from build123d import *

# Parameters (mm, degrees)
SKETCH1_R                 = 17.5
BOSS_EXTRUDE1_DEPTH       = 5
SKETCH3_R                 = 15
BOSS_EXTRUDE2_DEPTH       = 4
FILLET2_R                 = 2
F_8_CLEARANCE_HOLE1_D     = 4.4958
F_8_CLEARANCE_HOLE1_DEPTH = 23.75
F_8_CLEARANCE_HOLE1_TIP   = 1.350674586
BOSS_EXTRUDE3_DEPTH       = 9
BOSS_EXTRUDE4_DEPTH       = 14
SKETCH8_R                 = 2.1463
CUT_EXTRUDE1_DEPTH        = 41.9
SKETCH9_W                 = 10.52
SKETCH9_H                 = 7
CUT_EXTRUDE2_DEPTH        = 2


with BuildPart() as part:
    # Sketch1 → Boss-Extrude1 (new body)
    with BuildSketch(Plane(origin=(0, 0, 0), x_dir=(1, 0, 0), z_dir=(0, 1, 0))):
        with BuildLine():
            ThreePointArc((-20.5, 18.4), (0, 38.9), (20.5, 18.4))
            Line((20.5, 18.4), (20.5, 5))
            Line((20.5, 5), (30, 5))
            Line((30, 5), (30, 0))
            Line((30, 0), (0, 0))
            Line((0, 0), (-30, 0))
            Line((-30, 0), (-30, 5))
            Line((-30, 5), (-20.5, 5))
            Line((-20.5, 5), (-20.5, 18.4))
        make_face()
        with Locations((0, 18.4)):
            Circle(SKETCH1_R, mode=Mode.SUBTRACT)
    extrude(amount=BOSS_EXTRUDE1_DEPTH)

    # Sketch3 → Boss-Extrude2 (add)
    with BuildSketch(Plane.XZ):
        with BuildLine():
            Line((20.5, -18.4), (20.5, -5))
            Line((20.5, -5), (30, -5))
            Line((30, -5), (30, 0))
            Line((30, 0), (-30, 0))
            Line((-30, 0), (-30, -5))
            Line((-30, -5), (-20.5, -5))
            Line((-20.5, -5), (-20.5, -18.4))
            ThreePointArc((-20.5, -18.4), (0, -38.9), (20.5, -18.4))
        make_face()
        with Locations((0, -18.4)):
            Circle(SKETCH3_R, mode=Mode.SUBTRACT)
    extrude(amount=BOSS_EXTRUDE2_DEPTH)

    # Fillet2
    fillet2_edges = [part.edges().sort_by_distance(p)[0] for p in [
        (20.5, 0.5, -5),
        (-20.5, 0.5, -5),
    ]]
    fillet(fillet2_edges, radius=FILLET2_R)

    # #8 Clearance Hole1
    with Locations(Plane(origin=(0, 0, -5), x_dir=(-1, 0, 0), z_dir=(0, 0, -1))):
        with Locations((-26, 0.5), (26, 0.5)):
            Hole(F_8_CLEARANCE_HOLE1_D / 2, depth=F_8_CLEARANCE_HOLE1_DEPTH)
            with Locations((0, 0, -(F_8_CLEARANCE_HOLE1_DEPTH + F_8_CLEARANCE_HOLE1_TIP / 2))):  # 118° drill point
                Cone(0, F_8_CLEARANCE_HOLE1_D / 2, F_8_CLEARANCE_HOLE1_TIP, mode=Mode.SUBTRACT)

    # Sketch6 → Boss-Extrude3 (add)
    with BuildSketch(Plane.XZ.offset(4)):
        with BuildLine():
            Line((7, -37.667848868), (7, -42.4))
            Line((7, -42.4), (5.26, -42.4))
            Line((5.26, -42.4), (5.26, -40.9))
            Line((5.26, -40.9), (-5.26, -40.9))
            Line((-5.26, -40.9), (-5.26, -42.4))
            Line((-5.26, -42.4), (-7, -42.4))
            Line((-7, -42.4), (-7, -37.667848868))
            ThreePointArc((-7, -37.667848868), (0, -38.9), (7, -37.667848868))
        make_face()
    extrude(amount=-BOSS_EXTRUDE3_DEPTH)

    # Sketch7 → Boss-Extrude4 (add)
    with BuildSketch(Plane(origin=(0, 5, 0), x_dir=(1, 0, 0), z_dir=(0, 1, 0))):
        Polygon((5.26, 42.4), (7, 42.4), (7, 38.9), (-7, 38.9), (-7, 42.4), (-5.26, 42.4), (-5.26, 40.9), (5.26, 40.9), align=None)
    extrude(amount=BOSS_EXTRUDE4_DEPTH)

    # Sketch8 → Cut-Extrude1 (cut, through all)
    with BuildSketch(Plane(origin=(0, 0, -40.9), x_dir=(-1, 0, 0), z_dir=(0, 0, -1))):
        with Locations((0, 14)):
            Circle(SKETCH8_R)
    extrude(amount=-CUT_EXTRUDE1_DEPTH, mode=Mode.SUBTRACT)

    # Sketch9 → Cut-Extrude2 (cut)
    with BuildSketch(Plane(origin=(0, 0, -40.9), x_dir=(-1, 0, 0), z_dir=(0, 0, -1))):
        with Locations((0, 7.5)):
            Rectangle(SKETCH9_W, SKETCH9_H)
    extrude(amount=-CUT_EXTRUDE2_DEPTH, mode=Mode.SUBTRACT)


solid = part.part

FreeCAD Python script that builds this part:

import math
import FreeCAD as App
import Part
import Sketcher

V = App.Vector
Q = App.Units.Quantity


def edges_at(feature, points):
    """Names of the edges that pass closest to the given points."""
    edges = feature.Shape.Edges
    near = lambda p: min(range(len(edges)), key=lambda i: edges[i].distToShape(Part.Vertex(*p))[0])
    return sorted({f"Edge{near(p) + 1}" for p in points})

doc = App.newDocument("Part")
params = doc.addObject("Spreadsheet::Sheet", "Params")
for row, (alias, value) in enumerate([
    ("sketch1_diameter", "35 mm"),
    ("sketch1_radius", "20.5 mm"),
    ("sketch1_width", "60 mm"),
    ("sketch1_height", "5 mm"),
    ("sketch1_height2", "13.4 mm"),
    ("pad1_length", "5 mm"),
    ("sketch2_diameter", "30 mm"),
    ("sketch2_radius", "20.5 mm"),
    ("sketch2_width", "60 mm"),
    ("sketch2_height", "5 mm"),
    ("sketch2_height2", "13.4 mm"),
    ("pad2_length", "4 mm"),
    ("fillet_radius", "2 mm"),
    ("hole_diameter", "4.4958 mm"),
    ("hole_depth", "23.75 mm"),
    ("sketch4_radius", "20.5 mm"),
    ("sketch4_height", "1.5 mm"),
    ("sketch4_width", "1.74 mm"),
    ("pad3_length", "9 mm"),
    ("sketch5_width", "14 mm"),
    ("sketch5_height", "1.5 mm"),
    ("sketch5_height2", "3.5 mm"),
    ("sketch5_width2", "1.74 mm"),
    ("pad4_length", "14 mm"),
    ("sketch7_height", "7 mm"),
    ("sketch7_width", "10.52 mm"),
    ("pocket2_length", "2 mm"),
], start=1):
    params.set(f"A{row}", alias)
    params.set(f"B{row}", "=" + value)
    params.setAlias(f"B{row}", alias)

body = doc.addObject("PartDesign::Body", "Body")

sketch1 = body.newObject("Sketcher::SketchObject", "Sketch")
sketch1.AttachmentSupport = (doc.getObject("XZ_Plane"), [""])
sketch1.MapMode = "FlatFace"
sketch1.addGeometry([
    Part.ArcOfCircle(Part.Circle(V(0, -18, 0), V(0, 0, 1), 20), math.radians(180), math.radians(360)),
    Part.LineSegment(V(-20, -18, 0), V(-20, -5, 0)),
    Part.LineSegment(V(-20, -5, 0), V(-30, -5, 0)),
    Part.LineSegment(V(-30, -5, 0), V(-30, 0, 0)),
    Part.LineSegment(V(-30, 0, 0), V(30, 0, 0)),
    Part.LineSegment(V(30, 0, 0), V(30, -5, 0)),
    Part.LineSegment(V(30, -5, 0), V(20, -5, 0)),
    Part.LineSegment(V(20, -5, 0), V(20, -18, 0)),
    Part.Circle(V(0, -18, 0), V(0, 0, 1), 18),
], False)
sketch1.addConstraint([
    Sketcher.Constraint("Tangent", 0, 1, 1, 1),
    Sketcher.Constraint("Coincident", 1, 2, 2, 1),
    Sketcher.Constraint("Coincident", 2, 2, 3, 1),
    Sketcher.Constraint("Coincident", 3, 2, 4, 1),
    Sketcher.Constraint("Coincident", 4, 2, 5, 1),
    Sketcher.Constraint("Coincident", 5, 2, 6, 1),
    Sketcher.Constraint("Coincident", 6, 2, 7, 1),
    Sketcher.Constraint("Tangent", 7, 2, 0, 2),
    Sketcher.Constraint("Vertical", 1),
    Sketcher.Constraint("Horizontal", 2),
    Sketcher.Constraint("Vertical", 3),
    Sketcher.Constraint("Horizontal", 4),
    Sketcher.Constraint("Vertical", 5),
    Sketcher.Constraint("Horizontal", 6),
    Sketcher.Constraint("Vertical", 7),
    Sketcher.Constraint("Coincident", 8, 3, 0, 3),
    Sketcher.Constraint("Symmetric", 3, 2, 4, 2, -1, 1),
    Sketcher.Constraint("Symmetric", 1, 2, 6, 2, -2),
    Sketcher.Constraint("Diameter", 8, Q("35 mm")),
    Sketcher.Constraint("Radius", 0, Q("20.5 mm")),
    Sketcher.Constraint("DistanceX", 4, 1, 4, 2, Q("60 mm")),
    Sketcher.Constraint("DistanceY", 3, 1, 3, 2, Q("5 mm")),
    Sketcher.Constraint("DistanceY", 1, 1, 1, 2, Q("13.4 mm")),
])
sketch1.setExpression("Constraints[18]", "Params.sketch1_diameter")
sketch1.setExpression("Constraints[19]", "Params.sketch1_radius")
sketch1.setExpression("Constraints[20]", "Params.sketch1_width")
sketch1.setExpression("Constraints[21]", "Params.sketch1_height")
sketch1.setExpression("Constraints[22]", "Params.sketch1_height2")
pad1 = body.newObject("PartDesign::Pad", "Pad")
pad1.Profile = sketch1
pad1.setExpression("Length", "Params.pad1_length")
pad1.Reversed = True

sketch2 = body.newObject("Sketcher::SketchObject", "Sketch001")
sketch2.AttachmentSupport = (doc.getObject("XZ_Plane"), [""])
sketch2.MapMode = "FlatFace"
sketch2.addGeometry([
    Part.LineSegment(V(20, -18, 0), V(20, -5, 0)),
    Part.LineSegment(V(20, -5, 0), V(30, -5, 0)),
    Part.LineSegment(V(30, -5, 0), V(30, 0, 0)),
    Part.LineSegment(V(30, 0, 0), V(-30, 0, 0)),
    Part.LineSegment(V(-30, 0, 0), V(-30, -5, 0)),
    Part.LineSegment(V(-30, -5, 0), V(-20, -5, 0)),
    Part.LineSegment(V(-20, -5, 0), V(-20, -18, 0)),
    Part.ArcOfCircle(Part.Circle(V(0, -18, 0), V(0, 0, 1), 20), math.radians(180), math.radians(360)),
    Part.Circle(V(0, -18, 0), V(0, 0, 1), 15),
], False)
sketch2.addConstraint([
    Sketcher.Constraint("Coincident", 0, 2, 1, 1),
    Sketcher.Constraint("Coincident", 1, 2, 2, 1),
    Sketcher.Constraint("Coincident", 2, 2, 3, 1),
    Sketcher.Constraint("Coincident", 3, 2, 4, 1),
    Sketcher.Constraint("Coincident", 4, 2, 5, 1),
    Sketcher.Constraint("Coincident", 5, 2, 6, 1),
    Sketcher.Constraint("Tangent", 6, 2, 7, 1),
    Sketcher.Constraint("Tangent", 7, 2, 0, 1),
    Sketcher.Constraint("Vertical", 0),
    Sketcher.Constraint("Horizontal", 1),
    Sketcher.Constraint("Vertical", 2),
    Sketcher.Constraint("Horizontal", 3),
    Sketcher.Constraint("Vertical", 4),
    Sketcher.Constraint("Horizontal", 5),
    Sketcher.Constraint("Vertical", 6),
    Sketcher.Constraint("Coincident", 8, 3, 7, 3),
    Sketcher.Constraint("Symmetric", 2, 2, 3, 2, -1, 1),
    Sketcher.Constraint("Symmetric", 0, 2, 5, 2, -2),
    Sketcher.Constraint("Diameter", 8, Q("30 mm")),
    Sketcher.Constraint("Radius", 7, Q("20.5 mm")),
    Sketcher.Constraint("DistanceX", 3, 2, 3, 1, Q("60 mm")),
    Sketcher.Constraint("DistanceY", 2, 1, 2, 2, Q("5 mm")),
    Sketcher.Constraint("DistanceY", 0, 1, 0, 2, Q("13.4 mm")),
])
sketch2.setExpression("Constraints[18]", "Params.sketch2_diameter")
sketch2.setExpression("Constraints[19]", "Params.sketch2_radius")
sketch2.setExpression("Constraints[20]", "Params.sketch2_width")
sketch2.setExpression("Constraints[21]", "Params.sketch2_height")
sketch2.setExpression("Constraints[22]", "Params.sketch2_height2")
pad2 = body.newObject("PartDesign::Pad", "Pad001")
pad2.Profile = sketch2
pad2.setExpression("Length", "Params.pad2_length")
doc.recompute()

fillet = body.newObject("PartDesign::Fillet", "Fillet")
fillet.Base = (pad2, edges_at(pad2, [(20.5, 0.5, -5), (-20.5, 0.5, -5)]))
fillet.setExpression("Radius", "Params.fillet_radius")

sketch3 = body.newObject("Sketcher::SketchObject", "Sketch002")
sketch3.AttachmentSupport = (doc.getObject("XY_Plane"), [""])
sketch3.MapMode = "FlatFace"
sketch3.AttachmentOffset = App.Placement(V(0, 0, -5), App.Rotation())
sketch3.addGeometry([
    Part.Circle(V(26, 0.5, 0), V(0, 0, 1), 2.2),
    Part.Circle(V(-26, 0.5, 0), V(0, 0, 1), 2.2),
], False)
sketch3.addConstraint([
    Sketcher.Constraint("Equal", 0, 1),
    Sketcher.Constraint("Symmetric", 0, 3, 1, 3, -2),
    Sketcher.Constraint("DistanceX", -1, 1, 0, 3, Q("26 mm")),
    Sketcher.Constraint("Diameter", 0, Q("4.4958 mm")),
    Sketcher.Constraint("DistanceY", -1, 1, 0, 3, Q("0.5 mm")),
])
doc.recompute()
hole = body.newObject("PartDesign::Hole", "Hole")
hole.Profile = sketch3
hole.ThreadType = "None"
hole.setExpression("Diameter", "Params.hole_diameter")
hole.DepthType = "Dimension"
hole.setExpression("Depth", "Params.hole_depth")
hole.DrillPoint = "Angled"
hole.DrillPointAngle = 118
hole.Reversed = True

sketch4 = body.newObject("Sketcher::SketchObject", "Sketch003")
sketch4.AttachmentSupport = (doc.getObject("XZ_Plane"), [""])
sketch4.MapMode = "FlatFace"
sketch4.AttachmentOffset = App.Placement(V(0, 0, 4), App.Rotation())
sketch4.addGeometry([
    Part.LineSegment(V(7, -42.4, 0), V(7, -37.7, 0)),
    Part.ArcOfCircle(Part.Circle(V(0, -18.4, 0), V(0, 0, 1), 20.5), math.radians(-110), math.radians(-70)),
    Part.LineSegment(V(-7, -37.7, 0), V(-7, -42.4, 0)),
    Part.LineSegment(V(-7, -42.4, 0), V(-5.3, -42.4, 0)),
    Part.LineSegment(V(-5.3, -42.4, 0), V(-5.3, -40.9, 0)),
    Part.LineSegment(V(-5.3, -40.9, 0), V(5.3, -40.9, 0)),
    Part.LineSegment(V(5.3, -40.9, 0), V(5.3, -42.4, 0)),
    Part.LineSegment(V(5.3, -42.4, 0), V(7, -42.4, 0)),
], False)
sketch4.addConstraint([
    Sketcher.Constraint("Coincident", 0, 2, 1, 2),
    Sketcher.Constraint("Coincident", 1, 1, 2, 1),
    Sketcher.Constraint("Coincident", 2, 2, 3, 1),
    Sketcher.Constraint("Coincident", 3, 2, 4, 1),
    Sketcher.Constraint("Coincident", 4, 2, 5, 1),
    Sketcher.Constraint("Coincident", 5, 2, 6, 1),
    Sketcher.Constraint("Coincident", 6, 2, 7, 1),
    Sketcher.Constraint("Coincident", 7, 2, 0, 1),
    Sketcher.Constraint("Vertical", 0),
    Sketcher.Constraint("Vertical", 2),
    Sketcher.Constraint("Horizontal", 3),
    Sketcher.Constraint("Vertical", 4),
    Sketcher.Constraint("Horizontal", 5),
    Sketcher.Constraint("Vertical", 6),
    Sketcher.Constraint("Horizontal", 7),
    Sketcher.Constraint("Symmetric", 0, 2, 1, 1, -2),
    Sketcher.Constraint("Symmetric", 3, 2, 6, 2, -2),
    Sketcher.Constraint("Radius", 1, Q("20.5 mm")),
    Sketcher.Constraint("DistanceY", 4, 1, 4, 2, Q("1.5 mm")),
    Sketcher.Constraint("DistanceX", -1, 1, 0, 2, Q("7 mm")),
    Sketcher.Constraint("DistanceY", 2, 2, 1, 3, Q("24 mm")),
    Sketcher.Constraint("DistanceX", 3, 1, 3, 2, Q("1.74 mm")),
    Sketcher.Constraint("DistanceY", 1, 3, -1, 1, Q("18.4 mm")),
])
sketch4.setExpression("Constraints[17]", "Params.sketch4_radius")
sketch4.setExpression("Constraints[18]", "Params.sketch4_height")
sketch4.setExpression("Constraints[21]", "Params.sketch4_width")
pad3 = body.newObject("PartDesign::Pad", "Pad002")
pad3.Profile = sketch4
pad3.setExpression("Length", "Params.pad3_length")
pad3.Reversed = True

sketch5 = body.newObject("Sketcher::SketchObject", "Sketch004")
sketch5.AttachmentSupport = (doc.getObject("XZ_Plane"), [""])
sketch5.MapMode = "FlatFace"
sketch5.AttachmentOffset = App.Placement(V(0, 0, -5), App.Rotation())
sketch5.addGeometry([
    Part.LineSegment(V(7, -42.4, 0), V(5.3, -42.4, 0)),
    Part.LineSegment(V(5.3, -42.4, 0), V(5.3, -40.9, 0)),
    Part.LineSegment(V(5.3, -40.9, 0), V(-5.3, -40.9, 0)),
    Part.LineSegment(V(-5.3, -40.9, 0), V(-5.3, -42.4, 0)),
    Part.LineSegment(V(-5.3, -42.4, 0), V(-7, -42.4, 0)),
    Part.LineSegment(V(-7, -42.4, 0), V(-7, -38.9, 0)),
    Part.LineSegment(V(-7, -38.9, 0), V(7, -38.9, 0)),
    Part.LineSegment(V(7, -38.9, 0), V(7, -42.4, 0)),
], False)
sketch5.addConstraint([
    Sketcher.Constraint("Coincident", 0, 2, 1, 1),
    Sketcher.Constraint("Coincident", 1, 2, 2, 1),
    Sketcher.Constraint("Coincident", 2, 2, 3, 1),
    Sketcher.Constraint("Coincident", 3, 2, 4, 1),
    Sketcher.Constraint("Coincident", 4, 2, 5, 1),
    Sketcher.Constraint("Coincident", 5, 2, 6, 1),
    Sketcher.Constraint("Coincident", 6, 2, 7, 1),
    Sketcher.Constraint("Coincident", 7, 2, 0, 1),
    Sketcher.Constraint("Horizontal", 0),
    Sketcher.Constraint("Vertical", 1),
    Sketcher.Constraint("Horizontal", 2),
    Sketcher.Constraint("Vertical", 3),
    Sketcher.Constraint("Horizontal", 4),
    Sketcher.Constraint("Vertical", 5),
    Sketcher.Constraint("Horizontal", 6),
    Sketcher.Constraint("Vertical", 7),
    Sketcher.Constraint("Symmetric", 0, 2, 3, 2, -2),
    Sketcher.Constraint("Equal", 0, 4),
    Sketcher.Constraint("DistanceX", 6, 1, 6, 2, Q("14 mm")),
    Sketcher.Constraint("DistanceY", 1, 1, 1, 2, Q("1.5 mm")),
    Sketcher.Constraint("DistanceY", 5, 1, 5, 2, Q("3.5 mm")),
    Sketcher.Constraint("DistanceX", 0, 2, 0, 1, Q("1.74 mm")),
    Sketcher.Constraint("DistanceY", 0, 2, -1, 1, Q("42.4 mm")),
])
sketch5.setExpression("Constraints[18]", "Params.sketch5_width")
sketch5.setExpression("Constraints[19]", "Params.sketch5_height")
sketch5.setExpression("Constraints[20]", "Params.sketch5_height2")
sketch5.setExpression("Constraints[21]", "Params.sketch5_width2")
pad4 = body.newObject("PartDesign::Pad", "Pad003")
pad4.Profile = sketch5
pad4.setExpression("Length", "Params.pad4_length")
pad4.Reversed = True

sketch6 = body.newObject("Sketcher::SketchObject", "Sketch005")
sketch6.AttachmentSupport = (doc.getObject("XY_Plane"), [""])
sketch6.MapMode = "FlatFace"
sketch6.AttachmentOffset = App.Placement(V(0, 0, -40.9), App.Rotation())
sketch6.addGeometry(Part.Circle(V(0, 14, 0), V(0, 0, 1), 2.1), False)
sketch6.addConstraint([
    Sketcher.Constraint("PointOnObject", 0, 3, -2),
    Sketcher.Constraint("DistanceY", -1, 1, 0, 3, Q("14 mm")),
    Sketcher.Constraint("Diameter", 0, Q("4.2926 mm")),
])
pocket1 = body.newObject("PartDesign::Pocket", "Pocket")
pocket1.Profile = sketch6
pocket1.Type = "ThroughAll"
pocket1.Reversed = True

sketch7 = body.newObject("Sketcher::SketchObject", "Sketch006")
sketch7.AttachmentSupport = (doc.getObject("XY_Plane"), [""])
sketch7.MapMode = "FlatFace"
sketch7.AttachmentOffset = App.Placement(V(0, 0, -40.9), App.Rotation())
sketch7.addGeometry([
    Part.LineSegment(V(5, 11, 0), V(5, 4, 0)),
    Part.LineSegment(V(5, 4, 0), V(-5, 4, 0)),
    Part.LineSegment(V(-5, 4, 0), V(-5, 11, 0)),
    Part.LineSegment(V(-5, 11, 0), V(5, 11, 0)),
], False)
sketch7.addConstraint([
    Sketcher.Constraint("Coincident", 0, 2, 1, 1),
    Sketcher.Constraint("Coincident", 1, 2, 2, 1),
    Sketcher.Constraint("Coincident", 2, 2, 3, 1),
    Sketcher.Constraint("Coincident", 3, 2, 0, 1),
    Sketcher.Constraint("Vertical", 0),
    Sketcher.Constraint("Horizontal", 1),
    Sketcher.Constraint("Vertical", 2),
    Sketcher.Constraint("Horizontal", 3),
    Sketcher.Constraint("DistanceY", 0, 2, 0, 1, Q("7 mm")),
    Sketcher.Constraint("DistanceY", -1, 1, 0, 2, Q("4 mm")),
    Sketcher.Constraint("DistanceX", 1, 2, 1, 1, Q("10.52 mm")),
    Sketcher.Constraint("DistanceX", -1, 1, 0, 2, Q("5.26 mm")),
])
sketch7.setExpression("Constraints[8]", "Params.sketch7_height")
sketch7.setExpression("Constraints[10]", "Params.sketch7_width")
pocket2 = body.newObject("PartDesign::Pocket", "Pocket001")
pocket2.Profile = sketch7
pocket2.setExpression("Length", "Params.pocket2_length")
pocket2.Reversed = True

doc.recompute()
